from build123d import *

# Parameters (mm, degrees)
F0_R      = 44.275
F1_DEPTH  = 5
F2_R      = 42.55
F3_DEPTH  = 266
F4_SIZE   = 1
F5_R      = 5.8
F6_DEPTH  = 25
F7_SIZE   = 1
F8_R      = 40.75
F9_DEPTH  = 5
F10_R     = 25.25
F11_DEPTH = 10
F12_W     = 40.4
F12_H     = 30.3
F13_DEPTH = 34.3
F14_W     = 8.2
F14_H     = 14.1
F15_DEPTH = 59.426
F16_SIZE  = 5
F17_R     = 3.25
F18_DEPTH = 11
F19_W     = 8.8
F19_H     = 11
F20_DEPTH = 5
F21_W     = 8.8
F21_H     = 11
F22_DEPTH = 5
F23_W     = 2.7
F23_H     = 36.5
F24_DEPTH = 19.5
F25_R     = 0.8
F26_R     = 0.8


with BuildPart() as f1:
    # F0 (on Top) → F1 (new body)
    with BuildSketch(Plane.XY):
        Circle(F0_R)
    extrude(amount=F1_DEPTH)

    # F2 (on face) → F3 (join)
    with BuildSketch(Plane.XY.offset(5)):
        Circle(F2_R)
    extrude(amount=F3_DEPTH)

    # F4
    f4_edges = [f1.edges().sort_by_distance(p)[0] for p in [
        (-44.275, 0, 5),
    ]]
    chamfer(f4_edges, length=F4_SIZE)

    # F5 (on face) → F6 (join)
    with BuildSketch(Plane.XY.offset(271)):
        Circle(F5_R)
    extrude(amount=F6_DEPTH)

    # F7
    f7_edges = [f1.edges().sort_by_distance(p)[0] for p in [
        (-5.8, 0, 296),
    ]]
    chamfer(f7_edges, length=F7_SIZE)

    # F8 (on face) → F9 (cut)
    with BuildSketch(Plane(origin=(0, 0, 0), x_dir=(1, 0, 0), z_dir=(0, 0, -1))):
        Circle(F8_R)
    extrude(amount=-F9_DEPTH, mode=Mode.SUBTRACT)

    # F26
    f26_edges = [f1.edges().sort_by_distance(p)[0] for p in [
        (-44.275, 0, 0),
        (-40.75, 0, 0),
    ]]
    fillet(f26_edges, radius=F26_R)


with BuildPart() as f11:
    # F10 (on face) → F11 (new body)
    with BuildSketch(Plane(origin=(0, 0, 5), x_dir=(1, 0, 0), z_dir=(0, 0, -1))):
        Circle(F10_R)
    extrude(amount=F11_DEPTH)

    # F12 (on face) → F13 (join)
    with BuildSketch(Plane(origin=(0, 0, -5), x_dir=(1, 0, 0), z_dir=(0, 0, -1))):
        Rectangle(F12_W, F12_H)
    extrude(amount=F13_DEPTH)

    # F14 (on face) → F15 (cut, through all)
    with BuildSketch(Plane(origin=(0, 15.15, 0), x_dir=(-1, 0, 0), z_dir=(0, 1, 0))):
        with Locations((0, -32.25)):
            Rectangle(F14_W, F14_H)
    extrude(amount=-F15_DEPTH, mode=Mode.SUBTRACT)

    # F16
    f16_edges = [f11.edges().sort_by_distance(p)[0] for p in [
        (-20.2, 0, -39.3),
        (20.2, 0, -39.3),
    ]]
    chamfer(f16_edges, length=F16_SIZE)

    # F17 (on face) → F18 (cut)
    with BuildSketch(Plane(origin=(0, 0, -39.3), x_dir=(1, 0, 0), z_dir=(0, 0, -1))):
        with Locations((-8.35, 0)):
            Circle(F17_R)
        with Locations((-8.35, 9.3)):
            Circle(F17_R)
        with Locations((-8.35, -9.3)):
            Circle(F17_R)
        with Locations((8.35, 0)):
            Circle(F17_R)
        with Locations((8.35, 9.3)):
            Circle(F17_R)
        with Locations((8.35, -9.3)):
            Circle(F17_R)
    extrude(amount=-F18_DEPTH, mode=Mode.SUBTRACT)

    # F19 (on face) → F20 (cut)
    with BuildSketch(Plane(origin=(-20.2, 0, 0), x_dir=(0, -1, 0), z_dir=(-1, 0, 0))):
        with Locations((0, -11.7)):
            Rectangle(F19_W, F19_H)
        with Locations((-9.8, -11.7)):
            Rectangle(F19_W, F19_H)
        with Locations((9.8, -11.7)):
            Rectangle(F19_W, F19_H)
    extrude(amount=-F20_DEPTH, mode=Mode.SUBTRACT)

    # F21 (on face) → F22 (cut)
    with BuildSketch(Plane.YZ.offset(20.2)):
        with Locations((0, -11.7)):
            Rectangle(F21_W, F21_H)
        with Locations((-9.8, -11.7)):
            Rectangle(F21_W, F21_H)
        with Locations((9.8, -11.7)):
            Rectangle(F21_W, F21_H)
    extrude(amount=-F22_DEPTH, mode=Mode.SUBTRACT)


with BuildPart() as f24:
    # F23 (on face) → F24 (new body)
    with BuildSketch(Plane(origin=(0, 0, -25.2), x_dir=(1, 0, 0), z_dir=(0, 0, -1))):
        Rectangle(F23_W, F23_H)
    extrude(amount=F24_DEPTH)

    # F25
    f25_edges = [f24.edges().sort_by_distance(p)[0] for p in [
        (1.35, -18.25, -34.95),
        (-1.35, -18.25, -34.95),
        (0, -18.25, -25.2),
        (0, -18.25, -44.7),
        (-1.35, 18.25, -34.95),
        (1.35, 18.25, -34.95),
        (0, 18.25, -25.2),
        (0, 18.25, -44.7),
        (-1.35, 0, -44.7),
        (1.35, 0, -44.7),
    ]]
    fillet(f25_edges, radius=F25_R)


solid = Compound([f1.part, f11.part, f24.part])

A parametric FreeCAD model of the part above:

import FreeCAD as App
import Part
import Sketcher


def edges_at(feature, points):
    """Names of the edges that pass closest to the given points."""
    edges = feature.Shape.Edges
    near = lambda p: min(range(len(edges)), key=lambda i: edges[i].distToShape(Part.Vertex(*p))[0])
    return sorted({f"Edge{near(p) + 1}" for p in points})

doc = App.newDocument("Part")
body = doc.addObject("PartDesign::Body", "Body")

# Sketch on XY plane
sketch1 = body.newObject("Sketcher::SketchObject", "Sketch")
sketch1.AttachmentSupport = (doc.getObject("XY_Plane"), [""])
sketch1.MapMode = "FlatFace"
sketch1.addGeometry(Part.Circle(App.Vector(0, 0, 0), App.Vector(0, 0, 1), 44), False)
sketch1.addConstraint(Sketcher.Constraint("Coincident", 0, 3, -1, 1))
sketch1.addConstraint(Sketcher.Constraint("Diameter", 0, 88.55))
pad1 = body.newObject("PartDesign::Pad", "Pad")
pad1.Profile = sketch1
pad1.Length = 5

# Sketch on XY plane
sketch2 = body.newObject("Sketcher::SketchObject", "Sketch001")
sketch2.AttachmentSupport = (doc.getObject("XY_Plane"), [""])
sketch2.MapMode = "FlatFace"
sketch2.AttachmentOffset = App.Placement(App.Vector(0, 0, 5), App.Rotation())
sketch2.addGeometry(Part.Circle(App.Vector(0, 0, 0), App.Vector(0, 0, 1), 43), False)
sketch2.addConstraint(Sketcher.Constraint("Coincident", 0, 3, -1, 1))
sketch2.addConstraint(Sketcher.Constraint("Diameter", 0, 85.1))
pad2 = body.newObject("PartDesign::Pad", "Pad001")
pad2.Profile = sketch2
pad2.Length = 266
doc.recompute()

chamfer = body.newObject("PartDesign::Chamfer", "Chamfer")
chamfer.Base = (pad2, edges_at(pad2, [(-44.275, 0, 5)]))
chamfer.Size = 1

# Sketch on XY plane
sketch3 = body.newObject("Sketcher::SketchObject", "Sketch002")
sketch3.AttachmentSupport = (doc.getObject("XY_Plane"), [""])
sketch3.MapMode = "FlatFace"
sketch3.AttachmentOffset = App.Placement(App.Vector(0, 0, 271), App.Rotation())
sketch3.addGeometry(Part.Circle(App.Vector(0, 0, 0), App.Vector(0, 0, 1), 6), False)
sketch3.addConstraint(Sketcher.Constraint("Coincident", 0, 3, -1, 1))
sketch3.addConstraint(Sketcher.Constraint("Diameter", 0, 11.6))
pad3 = body.newObject("PartDesign::Pad", "Pad002")
pad3.Profile = sketch3
pad3.Length = 25
doc.recompute()

chamfer2 = body.newObject("PartDesign::Chamfer", "Chamfer001")
chamfer2.Base = (pad3, edges_at(pad3, [(-5.8, 0, 296)]))
chamfer2.Size = 1

# Sketch on XY plane
sketch4 = body.newObject("Sketcher::SketchObject", "Sketch003")
sketch4.AttachmentSupport = (doc.getObject("XY_Plane"), [""])
sketch4.MapMode = "FlatFace"
sketch4.addGeometry(Part.Circle(App.Vector(0, 0, 0), App.Vector(0, 0, 1), 41), False)
sketch4.addConstraint(Sketcher.Constraint("Coincident", 0, 3, -1, 1))
sketch4.addConstraint(Sketcher.Constraint("Diameter", 0, 81.5))
pocket1 = body.newObject("PartDesign::Pocket", "Pocket")
pocket1.Profile = sketch4
pocket1.Length = 5
pocket1.Reversed = True
doc.recompute()

fillet = body.newObject("PartDesign::Fillet", "Fillet")
fillet.Base = (pocket1, edges_at(pocket1, [(-44.275, 0, 0), (-40.75, 0, 0)]))
fillet.Radius = 0.8
body2 = doc.addObject("PartDesign::Body", "Body001")

# Sketch on XY plane
sketch5 = body2.newObject("Sketcher::SketchObject", "Sketch004")
sketch5.AttachmentSupport = (doc.getObject("XY_Plane001"), [""])
sketch5.MapMode = "FlatFace"
sketch5.AttachmentOffset = App.Placement(App.Vector(0, 0, 5), App.Rotation())
sketch5.addGeometry(Part.Circle(App.Vector(0, 0, 0), App.Vector(0, 0, 1), 25), False)
sketch5.addConstraint(Sketcher.Constraint("Coincident", 0, 3, -1, 1))
sketch5.addConstraint(Sketcher.Constraint("Diameter", 0, 50.5))
pad4 = body2.newObject("PartDesign::Pad", "Pad003")
pad4.Profile = sketch5
pad4.Length = 10
pad4.Reversed = True

# Sketch on XY plane
sketch6 = body2.newObject("Sketcher::SketchObject", "Sketch005")
sketch6.AttachmentSupport = (doc.getObject("XY_Plane001"), [""])
sketch6.MapMode = "FlatFace"
sketch6.AttachmentOffset = App.Placement(App.Vector(0, 0, -5), App.Rotation())
sketch6.addGeometry(Part.LineSegment(App.Vector(-20, -15, 0), App.Vector(-20, 15, 0)), False)
sketch6.addGeometry(Part.LineSegment(App.Vector(-20, 15, 0), App.Vector(20, 15, 0)), False)
sketch6.addGeometry(Part.LineSegment(App.Vector(20, 15, 0), App.Vector(20, -15, 0)), False)
sketch6.addGeometry(Part.LineSegment(App.Vector(20, -15, 0), App.Vector(-20, -15, 0)), False)
sketch6.addConstraint(Sketcher.Constraint("Coincident", 0, 2, 1, 1))
sketch6.addConstraint(Sketcher.Constraint("Coincident", 1, 2, 2, 1))
sketch6.addConstraint(Sketcher.Constraint("Coincident", 2, 2, 3, 1))
sketch6.addConstraint(Sketcher.Constraint("Coincident", 3, 2, 0, 1))
sketch6.addConstraint(Sketcher.Constraint("Vertical", 0))
sketch6.addConstraint(Sketcher.Constraint("Horizontal", 1))
sketch6.addConstraint(Sketcher.Constraint("Vertical", 2))
sketch6.addConstraint(Sketcher.Constraint("Horizontal", 3))
sketch6.addConstraint(Sketcher.Constraint("Symmetric", 0, 2, 2, 2, -1, 1))
sketch6.addConstraint(Sketcher.Constraint("DistanceX", 1, 1, 1, 2, 40.4))
sketch6.addConstraint(Sketcher.Constraint("DistanceY", 0, 1, 0, 2, 30.3))
pad5 = body2.newObject("PartDesign::Pad", "Pad004")
pad5.Profile = sketch6
pad5.Length = 34.3
pad5.Reversed = True

# Sketch on XZ plane
sketch7 = body2.newObject("Sketcher::SketchObject", "Sketch006")
sketch7.AttachmentSupport = (doc.getObject("XZ_Plane001"), [""])
sketch7.MapMode = "FlatFace"
sketch7.AttachmentOffset = App.Placement(App.Vector(0, 0, -15.15), App.Rotation())
sketch7.addGeometry(Part.LineSegment(App.Vector(4, -25, 0), App.Vector(4, -39, 0)), False)
sketch7.addGeometry(Part.LineSegment(App.Vector(4, -39, 0), App.Vector(-4, -39, 0)), False)
sketch7.addGeometry(Part.LineSegment(App.Vector(-4, -39, 0), App.Vector(-4, -25, 0)), False)
sketch7.addGeometry(Part.LineSegment(App.Vector(-4, -25, 0), App.Vector(4, -25, 0)), False)
sketch7.addConstraint(Sketcher.Constraint("Coincident", 0, 2, 1, 1))
sketch7.addConstraint(Sketcher.Constraint("Coincident", 1, 2, 2, 1))
sketch7.addConstraint(Sketcher.Constraint("Coincident", 2, 2, 3, 1))
sketch7.addConstraint(Sketcher.Constraint("Coincident", 3, 2, 0, 1))
sketch7.addConstraint(Sketcher.Constraint("Vertical", 0))
sketch7.addConstraint(Sketcher.Constraint("Horizontal", 1))
sketch7.addConstraint(Sketcher.Constraint("Vertical", 2))
sketch7.addConstraint(Sketcher.Constraint("Horizontal", 3))
sketch7.addConstraint(Sketcher.Constraint("DistanceX", 1, 2, 1, 1, 8.2))
sketch7.addConstraint(Sketcher.Constraint("DistanceY", 0, 2, 0, 1, 14.1))
sketch7.addConstraint(Sketcher.Constraint("DistanceX", -1, 1, 0, 2, 4.1))
sketch7.addConstraint(Sketcher.Constraint("DistanceY", 0, 2, -1, 1, 39.3))
pocket2 = body2.newObject("PartDesign::Pocket", "Pocket001")
pocket2.Profile = sketch7
pocket2.Type = "ThroughAll"
pocket2.Reversed = True
doc.recompute()

chamfer3 = body2.newObject("PartDesign::Chamfer", "Chamfer002")
chamfer3.Base = (pocket2, edges_at(pocket2, [(-20.2, 0, -39.3), (20.2, 0, -39.3)]))
chamfer3.Size = 5

# Sketch on XY plane
sketch8 = body2.newObject("Sketcher::SketchObject", "Sketch007")
sketch8.AttachmentSupport = (doc.getObject("XY_Plane001"), [""])
sketch8.MapMode = "FlatFace"
sketch8.AttachmentOffset = App.Placement(App.Vector(0, 0, -39.3), App.Rotation())
sketch8.addGeometry(Part.Circle(App.Vector(-8.3, 0, 0), App.Vector(0, 0, 1), 3.2), False)
sketch8.addGeometry(Part.Circle(App.Vector(-8.3, -9.3, 0), App.Vector(0, 0, 1), 3.2), False)
sketch8.addGeometry(Part.Circle(App.Vector(-8.3, 9.3, 0), App.Vector(0, 0, 1), 3.2), False)
sketch8.addGeometry(Part.Circle(App.Vector(8.3, 0, 0), App.Vector(0, 0, 1), 3.2), False)
sketch8.addGeometry(Part.Circle(App.Vector(8.3, -9.3, 0), App.Vector(0, 0, 1), 3.2), False)
sketch8.addGeometry(Part.Circle(App.Vector(8.3, 9.3, 0), App.Vector(0, 0, 1), 3.2), False)
sketch8.addConstraint(Sketcher.Constraint("Equal", 0, 1))
sketch8.addConstraint(Sketcher.Constraint("Equal", 1, 2))
sketch8.addConstraint(Sketcher.Constraint("Equal", 2, 3))
sketch8.addConstraint(Sketcher.Constraint("Equal", 3, 4))
sketch8.addConstraint(Sketcher.Constraint("Equal", 4, 5))
sketch8.addConstraint(Sketcher.Constraint("Symmetric", 0, 3, 3, 3, -1, 1))
sketch8.addConstraint(Sketcher.Constraint("Symmetric", 2, 3, 4, 3, -1, 1))
sketch8.addConstraint(Sketcher.Constraint("Symmetric", 1, 3, 5, 3, -1, 1))
sketch8.addConstraint(Sketcher.Constraint("Symmetric", 1, 3, 4, 3, -2))
sketch8.addConstraint(Sketcher.Constraint("PointOnObject", 0, 3, -1))
sketch8.addConstraint(Sketcher.Constraint("Vertical", 0, 3, 1, 3))
sketch8.addConstraint(Sketcher.Constraint("Diameter", 0, 6.5))
sketch8.addConstraint(Sketcher.Constraint("DistanceY", 1, 3, -1, 1, 9.3))
sketch8.addConstraint(Sketcher.Constraint("DistanceX", 0, 3, 3, 3, 16.7))
pocket3 = body2.newObject("PartDesign::Pocket", "Pocket002")
pocket3.Profile = sketch8
pocket3.Length = 11
pocket3.Reversed = True

# Sketch on YZ plane
sketch9 = body2.newObject("Sketcher::SketchObject", "Sketch008")
sketch9.AttachmentSupport = (doc.getObject("YZ_Plane001"), [""])
sketch9.MapMode = "FlatFace"
sketch9.AttachmentOffset = App.Placement(App.Vector(0, 0, -20.2), App.Rotation())
sketch9.addGeometry(Part.LineSegment(App.Vector(4, -6, 0), App.Vector(4, -17, 0)), False)
sketch9.addGeometry(Part.LineSegment(App.Vector(4, -17, 0), App.Vector(-4, -17, 0)), False)
sketch9.addGeometry(Part.LineSegment(App.Vector(-4, -17, 0), App.Vector(-4, -6, 0)), False)
sketch9.addGeometry(Part.LineSegment(App.Vector(-4, -6, 0), App.Vector(4, -6, 0)), False)
sketch9.addGeometry(Part.LineSegment(App.Vector(14, -6, 0), App.Vector(14, -17, 0)), False)
sketch9.addGeometry(Part.LineSegment(App.Vector(14, -17, 0), App.Vector(5, -17, 0)), False)
sketch9.addGeometry(Part.LineSegment(App.Vector(5, -17, 0), App.Vector(5, -6, 0)), False)
sketch9.addGeometry(Part.LineSegment(App.Vector(5, -6, 0), App.Vector(14, -6, 0)), False)
sketch9.addGeometry(Part.LineSegment(App.Vector(-5, -6, 0), App.Vector(-5, -17, 0)), False)
sketch9.addGeometry(Part.LineSegment(App.Vector(-5, -17, 0), App.Vector(-14, -17, 0)), False)
sketch9.addGeometry(Part.LineSegment(App.Vector(-14, -17, 0), App.Vector(-14, -6, 0)), False)
sketch9.addGeometry(Part.LineSegment(App.Vector(-14, -6, 0), App.Vector(-5, -6, 0)), False)
sketch9.addConstraint(Sketcher.Constraint("Coincident", 0, 2, 1, 1))
sketch9.addConstraint(Sketcher.Constraint("Coincident", 1, 2, 2, 1))
sketch9.addConstraint(Sketcher.Constraint("Coincident", 2, 2, 3, 1))
sketch9.addConstraint(Sketcher.Constraint("Coincident", 3, 2, 0, 1))
sketch9.addConstraint(Sketcher.Constraint("Coincident", 4, 2, 5, 1))
sketch9.addConstraint(Sketcher.Constraint("Coincident", 5, 2, 6, 1))
sketch9.addConstraint(Sketcher.Constraint("Coincident", 6, 2, 7, 1))
sketch9.addConstraint(Sketcher.Constraint("Coincident", 7, 2, 4, 1))
sketch9.addConstraint(Sketcher.Constraint("Coincident", 8, 2, 9, 1))
sketch9.addConstraint(Sketcher.Constraint("Coincident", 9, 2, 10, 1))
sketch9.addConstraint(Sketcher.Constraint("Coincident", 10, 2, 11, 1))
sketch9.addConstraint(Sketcher.Constraint("Coincident", 11, 2, 8, 1))
sketch9.addConstraint(Sketcher.Constraint("Vertical", 0))
sketch9.addConstraint(Sketcher.Constraint("Horizontal", 1))
sketch9.addConstraint(Sketcher.Constraint("Vertical", 2))
sketch9.addConstraint(Sketcher.Constraint("Horizontal", 3))
sketch9.addConstraint(Sketcher.Constraint("Vertical", 4))
sketch9.addConstraint(Sketcher.Constraint("Horizontal", 5))
sketch9.addConstraint(Sketcher.Constraint("Vertical", 6))
sketch9.addConstraint(Sketcher.Constraint("Horizontal", 7))
sketch9.addConstraint(Sketcher.Constraint("Vertical", 8))
sketch9.addConstraint(Sketcher.Constraint("Horizontal", 9))
sketch9.addConstraint(Sketcher.Constraint("Vertical", 10))
sketch9.addConstraint(Sketcher.Constraint("Horizontal", 11))
sketch9.addConstraint(Sketcher.Constraint("Symmetric", 5, 2, 8, 2, -2))
sketch9.addConstraint(Sketcher.Constraint("Symmetric", 7, 2, 10, 2, -2))
sketch9.addConstraint(Sketcher.Constraint("Horizontal", 1, 2, 4, 2))
sketch9.addConstraint(Sketcher.Constraint("Horizontal", 3, 2, 6, 2))
sketch9.addConstraint(Sketcher.Constraint("Equal", 3, 5))
sketch9.addConstraint(Sketcher.Constraint("DistanceY", 0, 2, 0, 1, 11.0))
sketch9.addConstraint(Sketcher.Constraint("DistanceX", 1, 2, 1, 1, 8.8))
sketch9.addConstraint(Sketcher.Constraint("DistanceX", 0, 2, 5, 2, 1.0))
sketch9.addConstraint(Sketcher.Constraint("DistanceX", 8, 2, 1, 2, 1.0))
sketch9.addConstraint(Sketcher.Constraint("DistanceY", 0, 2, -1, 1, 17.2))
pocket4 = body2.newObject("PartDesign::Pocket", "Pocket003")
pocket4.Profile = sketch9
pocket4.Length = 5
pocket4.Reversed = True

# Sketch on YZ plane
sketch10 = body2.newObject("Sketcher::SketchObject", "Sketch009")
sketch10.AttachmentSupport = (doc.getObject("YZ_Plane001"), [""])
sketch10.MapMode = "FlatFace"
sketch10.AttachmentOffset = App.Placement(App.Vector(0, 0, 20.2), App.Rotation())
sketch10.addGeometry(Part.LineSegment(App.Vector(-4, -6, 0), App.Vector(-4, -17, 0)), False)
sketch10.addGeometry(Part.LineSegment(App.Vector(-4, -17, 0), App.Vector(4, -17, 0)), False)
sketch10.addGeometry(Part.LineSegment(App.Vector(4, -17, 0), App.Vector(4, -6, 0)), False)
sketch10.addGeometry(Part.LineSegment(App.Vector(4, -6, 0), App.Vector(-4, -6, 0)), False)
sketch10.addGeometry(Part.LineSegment(App.Vector(-14, -6, 0), App.Vector(-14, -17, 0)), False)
sketch10.addGeometry(Part.LineSegment(App.Vector(-14, -17, 0), App.Vector(-5, -17, 0)), False)
sketch10.addGeometry(Part.LineSegment(App.Vector(-5, -17, 0), App.Vector(-5, -6, 0)), False)
sketch10.addGeometry(Part.LineSegment(App.Vector(-5, -6, 0), App.Vector(-14, -6, 0)), False)
sketch10.addGeometry(Part.LineSegment(App.Vector(5, -6, 0), App.Vector(5, -17, 0)), False)
sketch10.addGeometry(Part.LineSegment(App.Vector(5, -17, 0), App.Vector(14, -17, 0)), False)
sketch10.addGeometry(Part.LineSegment(App.Vector(14, -17, 0), App.Vector(14, -6, 0)), False)
sketch10.addGeometry(Part.LineSegment(App.Vector(14, -6, 0), App.Vector(5, -6, 0)), False)
sketch10.addConstraint(Sketcher.Constraint("Coincident", 0, 2, 1, 1))
sketch10.addConstraint(Sketcher.Constraint("Coincident", 1, 2, 2, 1))
sketch10.addConstraint(Sketcher.Constraint("Coincident", 2, 2, 3, 1))
sketch10.addConstraint(Sketcher.Constraint("Coincident", 3, 2, 0, 1))
sketch10.addConstraint(Sketcher.Constraint("Coincident", 4, 2, 5, 1))
sketch10.addConstraint(Sketcher.Constraint("Coincident", 5, 2, 6, 1))
sketch10.addConstraint(Sketcher.Constraint("Coincident", 6, 2, 7, 1))
sketch10.addConstraint(Sketcher.Constraint("Coincident", 7, 2, 4, 1))
sketch10.addConstraint(Sketcher.Constraint("Coincident", 8, 2, 9, 1))
sketch10.addConstraint(Sketcher.Constraint("Coincident", 9, 2, 10, 1))
sketch10.addConstraint(Sketcher.Constraint("Coincident", 10, 2, 11, 1))
sketch10.addConstraint(Sketcher.Constraint("Coincident", 11, 2, 8, 1))
sketch10.addConstraint(Sketcher.Constraint("Vertical", 0))
sketch10.addConstraint(Sketcher.Constraint("Horizontal", 1))
sketch10.addConstraint(Sketcher.Constraint("Vertical", 2))
sketch10.addConstraint(Sketcher.Constraint("Horizontal", 3))
sketch10.addConstraint(Sketcher.Constraint("Vertical", 4))
sketch10.addConstraint(Sketcher.Constraint("Horizontal", 5))
sketch10.addConstraint(Sketcher.Constraint("Vertical", 6))
sketch10.addConstraint(Sketcher.Constraint("Horizontal", 7))
sketch10.addConstraint(Sketcher.Constraint("Vertical", 8))
sketch10.addConstraint(Sketcher.Constraint("Horizontal", 9))
sketch10.addConstraint(Sketcher.Constraint("Vertical", 10))
sketch10.addConstraint(Sketcher.Constraint("Horizontal", 11))
sketch10.addConstraint(Sketcher.Constraint("Symmetric", 5, 2, 8, 2, -2))
sketch10.addConstraint(Sketcher.Constraint("Symmetric", 7, 2, 10, 2, -2))
sketch10.addConstraint(Sketcher.Constraint("Horizontal", 1, 2, 4, 2))
sketch10.addConstraint(Sketcher.Constraint("Horizontal", 3, 2, 6, 2))
sketch10.addConstraint(Sketcher.Constraint("Equal", 3, 5))
sketch10.addConstraint(Sketcher.Constraint("DistanceY", 0, 2, 0, 1, 11.0))
sketch10.addConstraint(Sketcher.Constraint("DistanceX", 1, 1, 1, 2, 8.8))
sketch10.addConstraint(Sketcher.Constraint("DistanceX", 5, 2, 0, 2, 1.0))
sketch10.addConstraint(Sketcher.Constraint("DistanceX", 1, 2, 8, 2, 1.0))
sketch10.addConstraint(Sketcher.Constraint("DistanceY", 0, 2, -1, 1, 17.2))
pocket5 = body2.newObject("PartDesign::Pocket", "Pocket004")
pocket5.Profile = sketch10
pocket5.Length = 5
body3 = doc.addObject("PartDesign::Body", "Body002")

# Sketch on XY plane
sketch11 = body3.newObject("Sketcher::SketchObject", "Sketch010")
sketch11.AttachmentSupport = (doc.getObject("XY_Plane002"), [""])
sketch11.MapMode = "FlatFace"
sketch11.AttachmentOffset = App.Placement(App.Vector(0, 0, -25.2), App.Rotation())
sketch11.addGeometry(Part.LineSegment(App.Vector(-1.4, -18.2, 0), App.Vector(-1.4, 18.2, 0)), False)
sketch11.addGeometry(Part.LineSegment(App.Vector(-1.4, 18.2, 0), App.Vector(1.4, 18.2, 0)), False)
sketch11.addGeometry(Part.LineSegment(App.Vector(1.4, 18.2, 0), App.Vector(1.4, -18.2, 0)), False)
sketch11.addGeometry(Part.LineSegment(App.Vector(1.4, -18.2, 0), App.Vector(-1.4, -18.2, 0)), False)
sketch11.addConstraint(Sketcher.Constraint("Coincident", 0, 2, 1, 1))
sketch11.addConstraint(Sketcher.Constraint("Coincident", 1, 2, 2, 1))
sketch11.addConstraint(Sketcher.Constraint("Coincident", 2, 2, 3, 1))
sketch11.addConstraint(Sketcher.Constraint("Coincident", 3, 2, 0, 1))
sketch11.addConstraint(Sketcher.Constraint("Vertical", 0))
sketch11.addConstraint(Sketcher.Constraint("Horizontal", 1))
sketch11.addConstraint(Sketcher.Constraint("Vertical", 2))
sketch11.addConstraint(Sketcher.Constraint("Horizontal", 3))
sketch11.addConstraint(Sketcher.Constraint("Symmetric", 0, 2, 2, 2, -1, 1))
sketch11.addConstraint(Sketcher.Constraint("DistanceX", 1, 1, 1, 2, 2.7))
sketch11.addConstraint(Sketcher.Constraint("DistanceY", 0, 1, 0, 2, 36.5))
pad6 = body3.newObject("PartDesign::Pad", "Pad005")
pad6.Profile = sketch11
pad6.Length = 19.5
pad6.Reversed = True
doc.recompute()

fillet2 = body3.newObject("PartDesign::Fillet", "Fillet001")
fillet2.Base = (pad6, edges_at(pad6, [
    (1.35, -18.25, -34.95),
    (-1.35, -18.25, -34.95),
    (0, -18.25, -25.2),
    (0, -18.25, -44.7),
    (-1.35, 18.25, -34.95),
    (1.35, 18.25, -34.95),
    (0, 18.25, -25.2),
    (0, 18.25, -44.7),
    (-1.35, 0, -44.7),
    (1.35, 0, -44.7),
]))
fillet2.Radius = 0.8

doc.recompute()
